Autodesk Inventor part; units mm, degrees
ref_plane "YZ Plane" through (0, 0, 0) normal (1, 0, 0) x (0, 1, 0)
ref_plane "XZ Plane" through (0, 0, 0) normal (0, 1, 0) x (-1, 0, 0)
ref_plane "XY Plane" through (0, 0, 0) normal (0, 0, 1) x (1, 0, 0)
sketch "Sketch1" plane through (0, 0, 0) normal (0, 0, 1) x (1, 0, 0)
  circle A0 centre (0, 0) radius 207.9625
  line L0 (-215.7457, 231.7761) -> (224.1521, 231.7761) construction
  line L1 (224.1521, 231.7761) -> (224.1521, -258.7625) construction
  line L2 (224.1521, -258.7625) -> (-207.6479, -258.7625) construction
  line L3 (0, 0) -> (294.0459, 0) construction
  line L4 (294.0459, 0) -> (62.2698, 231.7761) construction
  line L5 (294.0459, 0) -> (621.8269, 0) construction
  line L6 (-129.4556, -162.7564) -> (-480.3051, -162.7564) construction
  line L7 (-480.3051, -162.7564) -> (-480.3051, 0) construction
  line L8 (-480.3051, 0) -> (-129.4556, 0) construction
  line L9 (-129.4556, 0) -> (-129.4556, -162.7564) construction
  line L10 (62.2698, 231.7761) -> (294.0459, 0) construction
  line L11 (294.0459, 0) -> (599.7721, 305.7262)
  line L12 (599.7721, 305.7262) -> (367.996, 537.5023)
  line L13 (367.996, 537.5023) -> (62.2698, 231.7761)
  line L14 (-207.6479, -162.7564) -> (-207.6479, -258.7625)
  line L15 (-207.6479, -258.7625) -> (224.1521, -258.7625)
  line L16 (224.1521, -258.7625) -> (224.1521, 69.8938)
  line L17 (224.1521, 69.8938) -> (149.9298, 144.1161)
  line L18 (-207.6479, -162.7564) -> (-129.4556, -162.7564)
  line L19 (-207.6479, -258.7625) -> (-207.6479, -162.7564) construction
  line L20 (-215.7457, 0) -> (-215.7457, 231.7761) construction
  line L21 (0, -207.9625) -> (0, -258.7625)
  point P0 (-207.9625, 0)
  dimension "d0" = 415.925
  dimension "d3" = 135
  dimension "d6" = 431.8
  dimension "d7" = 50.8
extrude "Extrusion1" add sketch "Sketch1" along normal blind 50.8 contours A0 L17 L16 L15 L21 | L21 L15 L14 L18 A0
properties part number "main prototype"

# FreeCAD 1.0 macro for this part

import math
import FreeCAD as App
import Part
import Sketcher
from FreeCAD import Vector
Q = App.Units.Quantity

doc = App.newDocument("Part")
body = doc.addObject("PartDesign::Body", "Body")

# Sketch on XY plane
sketch1 = body.newObject("Sketcher::SketchObject", "Sketch")
sketch1.AttachmentSupport = (doc.getObject("XY_Plane"), [""])
sketch1.MapMode = "FlatFace"
sketch1.addGeometry(Part.ArcOfCircle(Part.Circle(Vector(0, 0, 0), Vector(0, 0, 1), 207.9625), math.radians(-128.498558), math.radians(43.86733)), False)
sketch1.addGeometry(Part.LineSegment(Vector(-129.4556, -162.7564, 0), Vector(-207.6479, -162.7564, 0)), False)
sketch1.addGeometry(Part.LineSegment(Vector(-207.6479, -162.7564, 0), Vector(-207.6479, -258.7625, 0)), False)
sketch1.addGeometry(Part.LineSegment(Vector(-207.6479, -258.7625, 0), Vector(224.1521, -258.7625, 0)), False)
sketch1.addGeometry(Part.LineSegment(Vector(224.1521, -258.7625, 0), Vector(224.1521, 69.8938, 0)), False)
sketch1.addGeometry(Part.LineSegment(Vector(224.1521, 69.8938, 0), Vector(149.9298, 144.1161, 0)), False)
sketch1.addConstraint(Sketcher.Constraint("Coincident", 0, 1, 1, 1))
sketch1.addConstraint(Sketcher.Constraint("Coincident", 1, 2, 2, 1))
sketch1.addConstraint(Sketcher.Constraint("Coincident", 2, 2, 3, 1))
sketch1.addConstraint(Sketcher.Constraint("Coincident", 3, 2, 4, 1))
sketch1.addConstraint(Sketcher.Constraint("Coincident", 4, 2, 5, 1))
sketch1.addConstraint(Sketcher.Constraint("Coincident", 5, 2, 0, 2))
sketch1.addConstraint(Sketcher.Constraint("Horizontal", 1))
sketch1.addConstraint(Sketcher.Constraint("Vertical", 2))
sketch1.addConstraint(Sketcher.Constraint("Horizontal", 3))
sketch1.addConstraint(Sketcher.Constraint("Vertical", 4))
sketch1.addConstraint(Sketcher.Constraint("Coincident", 0, 3, -1, 1))
sketch1.addConstraint(Sketcher.Constraint("DistanceX", 3, 1, 3, 2, Q("17 in")))
sketch1.addConstraint(Sketcher.Constraint("Radius", 0, Q("8.1875 in")))
sketch1.addConstraint(Sketcher.Constraint("DistanceY", 2, 2, -1, 1, Q("10.1875 in")))
sketch1.addConstraint(Sketcher.Constraint("DistanceX", 1, 2, 1, 1, 78.1923))
sketch1.addConstraint(Sketcher.Constraint("DistanceY", 2, 2, 2, 1, 96.006))
sketch1.addConstraint(Sketcher.Constraint("DistanceY", 4, 1, 4, 2, 328.6563))
sketch1.addConstraint(Sketcher.Constraint("DistanceY", 0, 1, 5, 2, Q("12.0816 in")))
pad1 = body.newObject("PartDesign::Pad", "Pad")
pad1.Profile = sketch1
pad1.Length = Q("2 in")

doc.recompute()
